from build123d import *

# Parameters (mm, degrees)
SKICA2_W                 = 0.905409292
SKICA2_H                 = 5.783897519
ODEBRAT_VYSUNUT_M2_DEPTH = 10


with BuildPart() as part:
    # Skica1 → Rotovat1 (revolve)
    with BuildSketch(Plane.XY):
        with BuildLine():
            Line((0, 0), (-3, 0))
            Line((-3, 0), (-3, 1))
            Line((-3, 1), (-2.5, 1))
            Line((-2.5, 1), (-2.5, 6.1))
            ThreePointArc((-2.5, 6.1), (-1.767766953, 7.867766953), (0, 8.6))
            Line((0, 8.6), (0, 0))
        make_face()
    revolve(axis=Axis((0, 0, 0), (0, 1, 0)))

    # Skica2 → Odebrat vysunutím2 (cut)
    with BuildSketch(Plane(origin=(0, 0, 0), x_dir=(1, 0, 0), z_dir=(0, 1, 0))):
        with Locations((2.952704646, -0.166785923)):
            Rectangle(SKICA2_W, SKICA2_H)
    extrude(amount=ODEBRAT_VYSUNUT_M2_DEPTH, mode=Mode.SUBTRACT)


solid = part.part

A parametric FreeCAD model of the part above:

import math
import FreeCAD as App
import Part
import Sketcher
from FreeCAD import Vector
Q = App.Units.Quantity

doc = App.newDocument("Part")
body = doc.addObject("PartDesign::Body", "Body")

sketch1 = body.newObject("Sketcher::SketchObject", "Sketch")
sketch1.AttachmentSupport = (doc.getObject("XY_Plane"), [""])
sketch1.MapMode = "FlatFace"
sketch1.addGeometry([
    Part.LineSegment(Vector(-3, 0, 0), Vector(0, 0, 0)),
    Part.LineSegment(Vector(0, 0, 0), Vector(0, 8.6, 0)),
    Part.ArcOfCircle(Part.Circle(Vector(0, 6.1, 0), Vector(0, 0, 1), 2.5), math.radians(90), math.radians(180)),
    Part.LineSegment(Vector(-2.5, 6.1, 0), Vector(-2.5, 1, 0)),
    Part.LineSegment(Vector(-2.5, 1, 0), Vector(-3, 1, 0)),
    Part.LineSegment(Vector(-3, 1, 0), Vector(-3, 0, 0)),
], False)
sketch1.addConstraint([
    Sketcher.Constraint("Coincident", 0, 2, 1, 1),
    Sketcher.Constraint("Coincident", 1, 2, 2, 1),
    Sketcher.Constraint("Tangent", 2, 2, 3, 1),
    Sketcher.Constraint("Coincident", 3, 2, 4, 1),
    Sketcher.Constraint("Coincident", 4, 2, 5, 1),
    Sketcher.Constraint("Coincident", 5, 2, 0, 1),
    Sketcher.Constraint("Horizontal", 0),
    Sketcher.Constraint("Vertical", 1),
    Sketcher.Constraint("Vertical", 3),
    Sketcher.Constraint("Horizontal", 4),
    Sketcher.Constraint("Vertical", 5),
    Sketcher.Constraint("Coincident", 0, 2, -1, 1),
    Sketcher.Constraint("PointOnObject", 2, 3, -2),
    Sketcher.Constraint("Radius", 2, Q("2.5 mm")),
    Sketcher.Constraint("DistanceX", 0, 1, 0, 2, Q("3 mm")),
    Sketcher.Constraint("DistanceY", 5, 2, 5, 1, Q("1 mm")),
    Sketcher.Constraint("DistanceY", 1, 1, 1, 2, Q("8.6 mm")),
])
revolution = body.newObject("PartDesign::Revolution", "Revolution")
revolution.Profile = sketch1
revolution.ReferenceAxis = (sketch1, ["V_Axis"])
revolution.Angle = 360

sketch2 = body.newObject("Sketcher::SketchObject", "Sketch001")
sketch2.AttachmentSupport = (doc.getObject("XZ_Plane"), [""])
sketch2.MapMode = "FlatFace"
sketch2.addGeometry([
    Part.LineSegment(Vector(2.5, -2.725163, 0), Vector(2.5, 3.058735, 0)),
    Part.LineSegment(Vector(2.5, 3.058735, 0), Vector(3.405409, 3.058735, 0)),
    Part.LineSegment(Vector(3.405409, 3.058735, 0), Vector(3.405409, -2.725163, 0)),
    Part.LineSegment(Vector(3.405409, -2.725163, 0), Vector(2.5, -2.725163, 0)),
], False)
sketch2.addConstraint([
    Sketcher.Constraint("Coincident", 0, 2, 1, 1),
    Sketcher.Constraint("Coincident", 1, 2, 2, 1),
    Sketcher.Constraint("Coincident", 2, 2, 3, 1),
    Sketcher.Constraint("Coincident", 3, 2, 0, 1),
    Sketcher.Constraint("Vertical", 0),
    Sketcher.Constraint("Horizontal", 1),
    Sketcher.Constraint("Vertical", 2),
    Sketcher.Constraint("Horizontal", 3),
    Sketcher.Constraint("DistanceX", -1, 1, 0, 2, Q("2.5 mm")),
    Sketcher.Constraint("DistanceX", 1, 1, 1, 2, Q("0.905409 mm")),
    Sketcher.Constraint("DistanceY", 0, 1, 0, 2, Q("5.783898 mm")),
    Sketcher.Constraint("DistanceY", -1, 1, 0, 2, Q("3.058735 mm")),
])
pocket1 = body.newObject("PartDesign::Pocket", "Pocket")
pocket1.Profile = sketch2
pocket1.Length = 10

doc.recompute()
